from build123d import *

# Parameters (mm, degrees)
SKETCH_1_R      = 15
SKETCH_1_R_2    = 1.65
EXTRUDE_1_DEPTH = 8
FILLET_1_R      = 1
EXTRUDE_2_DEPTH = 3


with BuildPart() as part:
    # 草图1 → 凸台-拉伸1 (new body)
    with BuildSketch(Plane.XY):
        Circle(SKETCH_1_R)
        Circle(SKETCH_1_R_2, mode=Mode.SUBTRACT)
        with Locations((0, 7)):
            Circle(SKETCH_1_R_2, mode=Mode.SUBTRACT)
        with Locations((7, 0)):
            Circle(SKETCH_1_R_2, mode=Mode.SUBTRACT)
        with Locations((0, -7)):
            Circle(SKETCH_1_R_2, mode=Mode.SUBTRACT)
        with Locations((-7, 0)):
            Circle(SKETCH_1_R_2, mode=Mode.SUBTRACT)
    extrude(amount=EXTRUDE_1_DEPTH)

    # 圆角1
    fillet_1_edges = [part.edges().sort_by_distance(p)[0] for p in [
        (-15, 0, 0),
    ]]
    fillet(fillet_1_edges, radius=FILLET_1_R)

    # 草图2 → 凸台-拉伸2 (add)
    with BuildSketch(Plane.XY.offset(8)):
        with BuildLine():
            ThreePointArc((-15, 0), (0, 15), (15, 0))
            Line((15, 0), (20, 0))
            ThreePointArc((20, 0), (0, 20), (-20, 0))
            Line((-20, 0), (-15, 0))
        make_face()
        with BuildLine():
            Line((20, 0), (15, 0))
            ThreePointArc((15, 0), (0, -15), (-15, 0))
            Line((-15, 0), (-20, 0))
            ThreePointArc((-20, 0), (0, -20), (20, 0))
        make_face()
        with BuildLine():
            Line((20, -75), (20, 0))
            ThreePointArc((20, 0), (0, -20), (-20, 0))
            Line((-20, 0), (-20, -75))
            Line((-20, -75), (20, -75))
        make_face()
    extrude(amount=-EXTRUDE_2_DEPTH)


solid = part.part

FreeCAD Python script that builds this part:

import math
import FreeCAD as App
import Part
import Sketcher

V = App.Vector


def edges_at(feature, points):
    """Names of the edges that pass closest to the given points."""
    edges = feature.Shape.Edges
    near = lambda p: min(range(len(edges)), key=lambda i: edges[i].distToShape(Part.Vertex(*p))[0])
    return sorted({f"Edge{near(p) + 1}" for p in points})

doc = App.newDocument("Part")
body = doc.addObject("PartDesign::Body", "Body")

# Sketch on XY plane
sketch1 = body.newObject("Sketcher::SketchObject", "Sketch")
sketch1.AttachmentSupport = (doc.getObject("XY_Plane"), [""])
sketch1.MapMode = "FlatFace"
sketch1.addGeometry([
    Part.Circle(V(0, 0, 0), V(0, 0, 1), 15),  # 0
    Part.Circle(V(0, -7, 0), V(0, 0, 1), 1.6),  # 1
    Part.Circle(V(-7, 0, 0), V(0, 0, 1), 1.6),  # 2
    Part.Circle(V(0, 0, 0), V(0, 0, 1), 1.6),  # 3
    Part.Circle(V(0, 7, 0), V(0, 0, 1), 1.6),  # 4
    Part.Circle(V(7, 0, 0), V(0, 0, 1), 1.6),  # 5
], False)
sketch1.addConstraint([
    Sketcher.Constraint("Coincident", 0, 3, -1, 1),
    Sketcher.Constraint("Coincident", 3, 3, -1, 1),
    Sketcher.Constraint("Equal", 1, 2),
    Sketcher.Constraint("Equal", 2, 3),
    Sketcher.Constraint("Equal", 3, 4),
    Sketcher.Constraint("Equal", 4, 5),
    Sketcher.Constraint("Symmetric", 1, 3, 4, 3, -1, 1),
    Sketcher.Constraint("Symmetric", 2, 3, 5, 3, -1, 1),
    Sketcher.Constraint("PointOnObject", 1, 3, -2),
    Sketcher.Constraint("PointOnObject", 2, 3, -1),
    Sketcher.Constraint("Diameter", 0, 30.0),
    Sketcher.Constraint("Diameter", 1, 3.3),
    Sketcher.Constraint("DistanceY", 1, 3, -1, 1, 7.0),
    Sketcher.Constraint("DistanceX", 2, 3, -1, 1, 7.0),
])
pad1 = body.newObject("PartDesign::Pad", "Pad")
pad1.Profile = sketch1
pad1.Length = 8
doc.recompute()

fillet = body.newObject("PartDesign::Fillet", "Fillet")
fillet.Base = (pad1, edges_at(pad1, [(-15, 0, 0)]))
fillet.Radius = 1

# Sketch on XY plane
sketch2 = body.newObject("Sketcher::SketchObject", "Sketch001")
sketch2.AttachmentSupport = (doc.getObject("XY_Plane"), [""])
sketch2.MapMode = "FlatFace"
sketch2.AttachmentOffset = App.Placement(V(0, 0, 8), App.Rotation())
sketch2.addGeometry([
    Part.ArcOfCircle(Part.Circle(V(0, 0, 0), V(0, 0, 1), 20), math.radians(0), math.radians(180)),  # 0
    Part.LineSegment(V(-20, 0, 0), V(-20, -75, 0)),  # 1
    Part.LineSegment(V(-20, -75, 0), V(20, -75, 0)),  # 2
    Part.LineSegment(V(20, -75, 0), V(20, 0, 0)),  # 3
    Part.Circle(V(0, 0, 0), V(0, 0, 1), 15),  # 4
], False)
sketch2.addConstraint([
    Sketcher.Constraint("Tangent", 0, 2, 1, 1),
    Sketcher.Constraint("Coincident", 1, 2, 2, 1),
    Sketcher.Constraint("Coincident", 2, 2, 3, 1),
    Sketcher.Constraint("Tangent", 3, 2, 0, 1),
    Sketcher.Constraint("Vertical", 1),
    Sketcher.Constraint("Horizontal", 2),
    Sketcher.Constraint("Vertical", 3),
    Sketcher.Constraint("Coincident", 0, 3, -1, 1),
    Sketcher.Constraint("Coincident", 4, 3, -1, 1),
    Sketcher.Constraint("Diameter", 4, 30.0),
    Sketcher.Constraint("Radius", 0, 20.0),
    Sketcher.Constraint("DistanceY", 1, 2, 1, 1, 75.0),
])
pad2 = body.newObject("PartDesign::Pad", "Pad001")
pad2.Profile = sketch2
pad2.Length = 3
pad2.Reversed = True

doc.recompute()
